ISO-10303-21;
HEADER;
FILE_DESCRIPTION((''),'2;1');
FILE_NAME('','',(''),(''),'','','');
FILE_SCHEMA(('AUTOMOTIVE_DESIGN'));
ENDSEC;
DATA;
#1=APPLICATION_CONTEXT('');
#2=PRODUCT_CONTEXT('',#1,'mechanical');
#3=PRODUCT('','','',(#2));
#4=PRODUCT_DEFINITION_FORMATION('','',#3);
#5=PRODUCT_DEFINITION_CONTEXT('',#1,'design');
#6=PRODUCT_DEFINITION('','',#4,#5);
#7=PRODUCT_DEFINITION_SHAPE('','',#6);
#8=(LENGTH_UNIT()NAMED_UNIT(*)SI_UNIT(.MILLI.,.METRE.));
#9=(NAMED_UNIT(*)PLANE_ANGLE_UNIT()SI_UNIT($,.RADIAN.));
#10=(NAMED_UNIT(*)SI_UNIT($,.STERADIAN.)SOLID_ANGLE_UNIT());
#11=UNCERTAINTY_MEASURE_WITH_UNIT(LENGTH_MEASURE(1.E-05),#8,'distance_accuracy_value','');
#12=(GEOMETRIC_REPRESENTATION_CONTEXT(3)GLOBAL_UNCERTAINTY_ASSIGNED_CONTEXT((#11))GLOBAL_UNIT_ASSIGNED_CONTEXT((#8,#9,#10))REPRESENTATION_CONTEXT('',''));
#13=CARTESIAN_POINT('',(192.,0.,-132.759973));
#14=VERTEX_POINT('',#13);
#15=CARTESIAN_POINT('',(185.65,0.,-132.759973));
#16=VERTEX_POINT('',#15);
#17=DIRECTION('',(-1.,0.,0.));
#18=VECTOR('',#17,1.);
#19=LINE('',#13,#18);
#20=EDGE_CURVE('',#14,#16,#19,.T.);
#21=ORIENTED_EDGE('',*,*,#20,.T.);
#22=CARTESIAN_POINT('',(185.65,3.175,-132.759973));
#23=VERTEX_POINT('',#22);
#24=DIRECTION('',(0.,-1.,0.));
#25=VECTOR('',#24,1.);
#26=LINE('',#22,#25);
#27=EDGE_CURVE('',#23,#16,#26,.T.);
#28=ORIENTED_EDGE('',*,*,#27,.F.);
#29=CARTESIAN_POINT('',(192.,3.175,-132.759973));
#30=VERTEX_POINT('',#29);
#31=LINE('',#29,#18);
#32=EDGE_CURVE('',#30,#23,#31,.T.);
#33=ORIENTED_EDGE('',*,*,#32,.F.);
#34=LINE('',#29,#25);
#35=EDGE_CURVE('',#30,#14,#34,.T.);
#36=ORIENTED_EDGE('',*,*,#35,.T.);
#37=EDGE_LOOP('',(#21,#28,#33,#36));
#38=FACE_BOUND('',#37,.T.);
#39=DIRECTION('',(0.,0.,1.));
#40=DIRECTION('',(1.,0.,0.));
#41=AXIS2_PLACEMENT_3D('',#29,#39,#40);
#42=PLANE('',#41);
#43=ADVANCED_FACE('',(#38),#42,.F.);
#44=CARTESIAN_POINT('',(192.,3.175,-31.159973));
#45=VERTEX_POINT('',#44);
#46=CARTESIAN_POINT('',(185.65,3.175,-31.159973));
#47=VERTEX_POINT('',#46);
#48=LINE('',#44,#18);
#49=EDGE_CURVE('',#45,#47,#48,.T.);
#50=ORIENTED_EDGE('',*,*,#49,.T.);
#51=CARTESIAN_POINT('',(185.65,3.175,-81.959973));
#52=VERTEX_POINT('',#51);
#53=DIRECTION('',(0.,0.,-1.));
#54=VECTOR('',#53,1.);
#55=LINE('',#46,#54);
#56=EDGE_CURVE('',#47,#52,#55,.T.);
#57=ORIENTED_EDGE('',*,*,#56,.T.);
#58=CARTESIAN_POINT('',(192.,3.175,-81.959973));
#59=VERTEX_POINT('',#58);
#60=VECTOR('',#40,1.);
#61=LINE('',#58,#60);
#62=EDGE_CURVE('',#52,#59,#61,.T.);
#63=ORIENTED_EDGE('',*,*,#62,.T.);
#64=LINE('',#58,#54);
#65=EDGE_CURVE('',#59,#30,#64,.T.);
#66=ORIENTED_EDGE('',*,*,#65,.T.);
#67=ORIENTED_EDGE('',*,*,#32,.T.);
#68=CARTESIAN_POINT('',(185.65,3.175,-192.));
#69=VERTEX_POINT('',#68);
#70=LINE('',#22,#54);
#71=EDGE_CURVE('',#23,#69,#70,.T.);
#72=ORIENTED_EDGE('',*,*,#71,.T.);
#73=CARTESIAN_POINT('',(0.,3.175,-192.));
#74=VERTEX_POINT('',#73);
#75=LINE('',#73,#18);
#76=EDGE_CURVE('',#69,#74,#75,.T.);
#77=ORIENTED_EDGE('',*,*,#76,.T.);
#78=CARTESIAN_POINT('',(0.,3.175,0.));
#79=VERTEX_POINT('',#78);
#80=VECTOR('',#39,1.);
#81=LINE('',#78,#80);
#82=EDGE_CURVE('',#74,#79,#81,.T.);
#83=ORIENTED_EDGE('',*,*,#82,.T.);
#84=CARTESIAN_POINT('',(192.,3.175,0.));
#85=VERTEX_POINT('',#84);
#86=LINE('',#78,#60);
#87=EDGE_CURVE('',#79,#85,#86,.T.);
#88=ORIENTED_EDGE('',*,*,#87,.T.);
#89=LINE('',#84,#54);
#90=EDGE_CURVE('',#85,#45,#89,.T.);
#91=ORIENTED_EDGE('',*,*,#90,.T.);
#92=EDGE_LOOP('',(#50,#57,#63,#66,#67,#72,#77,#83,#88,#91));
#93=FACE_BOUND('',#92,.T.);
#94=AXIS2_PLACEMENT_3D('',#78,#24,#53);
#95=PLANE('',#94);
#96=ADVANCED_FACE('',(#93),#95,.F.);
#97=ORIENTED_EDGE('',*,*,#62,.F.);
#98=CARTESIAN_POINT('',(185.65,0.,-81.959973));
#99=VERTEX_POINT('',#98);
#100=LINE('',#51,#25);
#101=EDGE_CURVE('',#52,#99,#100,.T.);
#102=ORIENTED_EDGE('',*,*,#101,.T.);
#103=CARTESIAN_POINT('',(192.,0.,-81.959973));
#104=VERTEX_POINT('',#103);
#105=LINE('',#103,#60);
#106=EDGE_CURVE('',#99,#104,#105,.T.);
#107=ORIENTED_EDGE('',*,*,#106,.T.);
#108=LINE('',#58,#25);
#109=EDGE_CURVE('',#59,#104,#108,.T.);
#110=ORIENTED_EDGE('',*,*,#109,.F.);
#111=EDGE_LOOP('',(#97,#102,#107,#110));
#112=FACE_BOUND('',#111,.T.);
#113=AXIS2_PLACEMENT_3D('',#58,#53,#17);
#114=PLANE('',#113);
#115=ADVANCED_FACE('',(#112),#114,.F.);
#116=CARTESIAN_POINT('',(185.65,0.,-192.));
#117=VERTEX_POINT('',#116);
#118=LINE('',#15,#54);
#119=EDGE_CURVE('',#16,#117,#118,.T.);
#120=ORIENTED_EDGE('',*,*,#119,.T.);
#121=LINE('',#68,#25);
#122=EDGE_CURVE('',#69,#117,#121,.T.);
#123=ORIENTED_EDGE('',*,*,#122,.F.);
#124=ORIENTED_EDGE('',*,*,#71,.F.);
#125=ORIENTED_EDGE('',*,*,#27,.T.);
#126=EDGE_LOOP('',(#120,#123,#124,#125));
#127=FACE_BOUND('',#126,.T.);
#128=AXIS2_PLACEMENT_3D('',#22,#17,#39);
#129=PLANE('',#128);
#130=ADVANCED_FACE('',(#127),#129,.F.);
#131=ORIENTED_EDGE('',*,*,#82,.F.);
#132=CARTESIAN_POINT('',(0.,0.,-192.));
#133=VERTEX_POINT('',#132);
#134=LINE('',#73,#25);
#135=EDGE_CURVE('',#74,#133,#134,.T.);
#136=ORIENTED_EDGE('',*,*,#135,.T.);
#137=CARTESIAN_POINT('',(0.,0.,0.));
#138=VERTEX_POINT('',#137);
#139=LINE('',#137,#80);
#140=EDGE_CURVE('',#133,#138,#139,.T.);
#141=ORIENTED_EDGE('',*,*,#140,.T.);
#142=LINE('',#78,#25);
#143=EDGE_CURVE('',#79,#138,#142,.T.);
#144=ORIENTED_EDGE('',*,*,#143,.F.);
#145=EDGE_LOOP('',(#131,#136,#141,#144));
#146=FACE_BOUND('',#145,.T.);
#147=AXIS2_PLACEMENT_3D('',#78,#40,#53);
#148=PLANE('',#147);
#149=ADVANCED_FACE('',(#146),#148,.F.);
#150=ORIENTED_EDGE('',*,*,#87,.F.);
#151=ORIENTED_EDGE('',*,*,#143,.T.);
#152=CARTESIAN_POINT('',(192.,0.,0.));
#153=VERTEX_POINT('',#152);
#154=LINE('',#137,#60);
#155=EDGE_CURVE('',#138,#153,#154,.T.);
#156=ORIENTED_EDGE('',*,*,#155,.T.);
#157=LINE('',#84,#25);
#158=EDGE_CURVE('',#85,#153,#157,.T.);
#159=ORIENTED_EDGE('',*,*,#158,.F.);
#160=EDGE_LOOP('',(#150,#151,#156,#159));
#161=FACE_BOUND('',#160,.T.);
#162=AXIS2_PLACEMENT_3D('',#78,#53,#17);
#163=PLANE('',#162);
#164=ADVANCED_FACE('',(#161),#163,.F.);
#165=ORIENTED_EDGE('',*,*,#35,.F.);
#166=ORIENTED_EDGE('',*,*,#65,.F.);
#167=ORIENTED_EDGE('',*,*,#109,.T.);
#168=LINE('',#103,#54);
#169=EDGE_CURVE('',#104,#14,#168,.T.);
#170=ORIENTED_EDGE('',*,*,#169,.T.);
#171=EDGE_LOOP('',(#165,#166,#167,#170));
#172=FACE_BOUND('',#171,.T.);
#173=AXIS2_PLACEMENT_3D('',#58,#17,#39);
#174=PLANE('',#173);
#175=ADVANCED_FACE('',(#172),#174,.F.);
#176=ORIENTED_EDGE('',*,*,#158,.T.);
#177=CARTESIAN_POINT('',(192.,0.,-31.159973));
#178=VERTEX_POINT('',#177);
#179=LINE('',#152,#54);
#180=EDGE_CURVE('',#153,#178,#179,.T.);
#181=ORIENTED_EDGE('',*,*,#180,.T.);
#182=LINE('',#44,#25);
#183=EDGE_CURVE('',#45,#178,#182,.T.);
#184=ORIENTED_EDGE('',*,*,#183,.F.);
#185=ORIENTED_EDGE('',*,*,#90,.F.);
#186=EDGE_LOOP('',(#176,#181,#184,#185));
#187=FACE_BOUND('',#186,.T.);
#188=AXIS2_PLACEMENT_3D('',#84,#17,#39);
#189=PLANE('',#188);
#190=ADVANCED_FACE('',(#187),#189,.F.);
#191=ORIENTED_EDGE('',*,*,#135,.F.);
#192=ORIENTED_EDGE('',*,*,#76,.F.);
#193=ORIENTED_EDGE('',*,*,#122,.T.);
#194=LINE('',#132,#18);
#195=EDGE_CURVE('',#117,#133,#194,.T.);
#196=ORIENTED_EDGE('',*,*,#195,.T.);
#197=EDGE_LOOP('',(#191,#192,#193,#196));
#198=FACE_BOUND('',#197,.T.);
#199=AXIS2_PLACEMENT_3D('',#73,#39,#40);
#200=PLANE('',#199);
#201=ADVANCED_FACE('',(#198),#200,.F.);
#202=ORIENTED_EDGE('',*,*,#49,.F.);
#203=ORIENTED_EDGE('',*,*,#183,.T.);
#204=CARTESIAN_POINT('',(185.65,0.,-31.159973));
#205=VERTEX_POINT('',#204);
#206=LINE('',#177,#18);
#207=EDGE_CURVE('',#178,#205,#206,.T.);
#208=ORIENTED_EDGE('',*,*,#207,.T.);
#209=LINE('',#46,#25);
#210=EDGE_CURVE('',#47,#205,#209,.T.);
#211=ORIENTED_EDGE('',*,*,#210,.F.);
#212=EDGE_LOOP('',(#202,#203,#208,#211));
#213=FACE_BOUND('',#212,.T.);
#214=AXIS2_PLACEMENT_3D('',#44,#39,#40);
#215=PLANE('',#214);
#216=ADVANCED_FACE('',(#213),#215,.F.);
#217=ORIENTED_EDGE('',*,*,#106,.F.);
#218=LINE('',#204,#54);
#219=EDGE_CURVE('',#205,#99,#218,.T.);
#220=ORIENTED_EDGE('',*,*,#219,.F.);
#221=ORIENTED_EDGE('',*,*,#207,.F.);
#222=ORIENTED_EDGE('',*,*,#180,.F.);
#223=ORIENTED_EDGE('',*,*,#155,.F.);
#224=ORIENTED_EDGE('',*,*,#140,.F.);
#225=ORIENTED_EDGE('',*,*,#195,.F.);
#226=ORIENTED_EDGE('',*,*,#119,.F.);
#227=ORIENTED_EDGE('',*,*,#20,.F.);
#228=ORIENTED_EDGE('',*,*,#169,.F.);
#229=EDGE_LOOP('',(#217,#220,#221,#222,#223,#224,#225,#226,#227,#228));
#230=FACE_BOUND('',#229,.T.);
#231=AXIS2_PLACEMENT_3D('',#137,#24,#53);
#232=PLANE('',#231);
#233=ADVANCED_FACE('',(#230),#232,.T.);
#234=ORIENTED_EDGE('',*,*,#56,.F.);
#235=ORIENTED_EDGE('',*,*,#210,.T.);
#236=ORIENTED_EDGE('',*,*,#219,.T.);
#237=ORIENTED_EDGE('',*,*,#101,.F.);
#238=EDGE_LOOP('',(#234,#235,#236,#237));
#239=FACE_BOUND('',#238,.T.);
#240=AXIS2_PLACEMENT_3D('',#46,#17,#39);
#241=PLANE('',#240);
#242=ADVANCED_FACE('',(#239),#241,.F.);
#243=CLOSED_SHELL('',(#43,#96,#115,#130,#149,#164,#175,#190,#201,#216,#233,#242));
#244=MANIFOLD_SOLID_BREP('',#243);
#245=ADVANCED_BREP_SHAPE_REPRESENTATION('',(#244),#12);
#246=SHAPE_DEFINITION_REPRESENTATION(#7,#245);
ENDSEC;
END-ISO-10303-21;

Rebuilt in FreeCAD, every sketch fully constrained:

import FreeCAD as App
import Part
import Sketcher
from FreeCAD import Vector
Q = App.Units.Quantity


def add_polygon(sketch, points):
    """Adds a closed chain of lines whose ends are joined by coincident constraints."""
    first, n = sketch.GeometryCount, len(points)
    for a, b in zip(points, points[1:] + points[:1]):
        sketch.addGeometry(Part.LineSegment(App.Vector(*a, 0), App.Vector(*b, 0)), False)
    for i in range(n):
        sketch.addConstraint(Sketcher.Constraint("Coincident", first + i, 2, first + (i + 1) % n, 1))

doc = App.newDocument("Part")
body = doc.addObject("PartDesign::Body", "Body")

# Sketch on XZ plane
sketch1 = doc.addObject("Sketcher::SketchObject", "Sketch")
body.addObject(sketch1)
sketch1.AttachmentSupport = (doc.XZ_Plane, [""])
sketch1.MapMode = "FlatFace"
add_polygon(sketch1, [(0, 0), (192, 0), (192, -31), (186, -31), (186, -82), (192, -82), (192, -133), (186, -133), (186, -192), (0, -192)])  # lines 0-9
sketch1.addConstraint([
    Sketcher.Constraint("Horizontal", 0),
    Sketcher.Constraint("Vertical", 1),
    Sketcher.Constraint("Horizontal", 2),
    Sketcher.Constraint("Vertical", 3),
    Sketcher.Constraint("Horizontal", 4),
    Sketcher.Constraint("Vertical", 5),
    Sketcher.Constraint("Horizontal", 6),
    Sketcher.Constraint("Vertical", 7),
    Sketcher.Constraint("Horizontal", 8),
    Sketcher.Constraint("Vertical", 9),
    Sketcher.Constraint("Coincident", 9, 2, -1, 1),
    Sketcher.Constraint("Vertical", 1, 2, 4, 2),
    Sketcher.Constraint("Vertical", 3, 2, 6, 2),
    Sketcher.Constraint("Equal", 3, 5),
    Sketcher.Constraint("Equal", 0, 9),
    Sketcher.Constraint("DistanceY", 3, 2, 3, 1, Q("2 in")),
    Sketcher.Constraint("DistanceX", 2, 2, 2, 1, Q("0.25 in")),
    Sketcher.Constraint("DistanceX", 0, 1, 0, 2, Q("192 mm")),
    Sketcher.Constraint("DistanceY", 1, 2, 1, 1, Q("31.159973 mm")),
])
pad1 = doc.addObject("PartDesign::Pad", "Pad")
body.addObject(pad1)
pad1.Profile = sketch1
pad1.Length = Q("0.125 in")
pad1.Reversed = True

doc.recompute()
